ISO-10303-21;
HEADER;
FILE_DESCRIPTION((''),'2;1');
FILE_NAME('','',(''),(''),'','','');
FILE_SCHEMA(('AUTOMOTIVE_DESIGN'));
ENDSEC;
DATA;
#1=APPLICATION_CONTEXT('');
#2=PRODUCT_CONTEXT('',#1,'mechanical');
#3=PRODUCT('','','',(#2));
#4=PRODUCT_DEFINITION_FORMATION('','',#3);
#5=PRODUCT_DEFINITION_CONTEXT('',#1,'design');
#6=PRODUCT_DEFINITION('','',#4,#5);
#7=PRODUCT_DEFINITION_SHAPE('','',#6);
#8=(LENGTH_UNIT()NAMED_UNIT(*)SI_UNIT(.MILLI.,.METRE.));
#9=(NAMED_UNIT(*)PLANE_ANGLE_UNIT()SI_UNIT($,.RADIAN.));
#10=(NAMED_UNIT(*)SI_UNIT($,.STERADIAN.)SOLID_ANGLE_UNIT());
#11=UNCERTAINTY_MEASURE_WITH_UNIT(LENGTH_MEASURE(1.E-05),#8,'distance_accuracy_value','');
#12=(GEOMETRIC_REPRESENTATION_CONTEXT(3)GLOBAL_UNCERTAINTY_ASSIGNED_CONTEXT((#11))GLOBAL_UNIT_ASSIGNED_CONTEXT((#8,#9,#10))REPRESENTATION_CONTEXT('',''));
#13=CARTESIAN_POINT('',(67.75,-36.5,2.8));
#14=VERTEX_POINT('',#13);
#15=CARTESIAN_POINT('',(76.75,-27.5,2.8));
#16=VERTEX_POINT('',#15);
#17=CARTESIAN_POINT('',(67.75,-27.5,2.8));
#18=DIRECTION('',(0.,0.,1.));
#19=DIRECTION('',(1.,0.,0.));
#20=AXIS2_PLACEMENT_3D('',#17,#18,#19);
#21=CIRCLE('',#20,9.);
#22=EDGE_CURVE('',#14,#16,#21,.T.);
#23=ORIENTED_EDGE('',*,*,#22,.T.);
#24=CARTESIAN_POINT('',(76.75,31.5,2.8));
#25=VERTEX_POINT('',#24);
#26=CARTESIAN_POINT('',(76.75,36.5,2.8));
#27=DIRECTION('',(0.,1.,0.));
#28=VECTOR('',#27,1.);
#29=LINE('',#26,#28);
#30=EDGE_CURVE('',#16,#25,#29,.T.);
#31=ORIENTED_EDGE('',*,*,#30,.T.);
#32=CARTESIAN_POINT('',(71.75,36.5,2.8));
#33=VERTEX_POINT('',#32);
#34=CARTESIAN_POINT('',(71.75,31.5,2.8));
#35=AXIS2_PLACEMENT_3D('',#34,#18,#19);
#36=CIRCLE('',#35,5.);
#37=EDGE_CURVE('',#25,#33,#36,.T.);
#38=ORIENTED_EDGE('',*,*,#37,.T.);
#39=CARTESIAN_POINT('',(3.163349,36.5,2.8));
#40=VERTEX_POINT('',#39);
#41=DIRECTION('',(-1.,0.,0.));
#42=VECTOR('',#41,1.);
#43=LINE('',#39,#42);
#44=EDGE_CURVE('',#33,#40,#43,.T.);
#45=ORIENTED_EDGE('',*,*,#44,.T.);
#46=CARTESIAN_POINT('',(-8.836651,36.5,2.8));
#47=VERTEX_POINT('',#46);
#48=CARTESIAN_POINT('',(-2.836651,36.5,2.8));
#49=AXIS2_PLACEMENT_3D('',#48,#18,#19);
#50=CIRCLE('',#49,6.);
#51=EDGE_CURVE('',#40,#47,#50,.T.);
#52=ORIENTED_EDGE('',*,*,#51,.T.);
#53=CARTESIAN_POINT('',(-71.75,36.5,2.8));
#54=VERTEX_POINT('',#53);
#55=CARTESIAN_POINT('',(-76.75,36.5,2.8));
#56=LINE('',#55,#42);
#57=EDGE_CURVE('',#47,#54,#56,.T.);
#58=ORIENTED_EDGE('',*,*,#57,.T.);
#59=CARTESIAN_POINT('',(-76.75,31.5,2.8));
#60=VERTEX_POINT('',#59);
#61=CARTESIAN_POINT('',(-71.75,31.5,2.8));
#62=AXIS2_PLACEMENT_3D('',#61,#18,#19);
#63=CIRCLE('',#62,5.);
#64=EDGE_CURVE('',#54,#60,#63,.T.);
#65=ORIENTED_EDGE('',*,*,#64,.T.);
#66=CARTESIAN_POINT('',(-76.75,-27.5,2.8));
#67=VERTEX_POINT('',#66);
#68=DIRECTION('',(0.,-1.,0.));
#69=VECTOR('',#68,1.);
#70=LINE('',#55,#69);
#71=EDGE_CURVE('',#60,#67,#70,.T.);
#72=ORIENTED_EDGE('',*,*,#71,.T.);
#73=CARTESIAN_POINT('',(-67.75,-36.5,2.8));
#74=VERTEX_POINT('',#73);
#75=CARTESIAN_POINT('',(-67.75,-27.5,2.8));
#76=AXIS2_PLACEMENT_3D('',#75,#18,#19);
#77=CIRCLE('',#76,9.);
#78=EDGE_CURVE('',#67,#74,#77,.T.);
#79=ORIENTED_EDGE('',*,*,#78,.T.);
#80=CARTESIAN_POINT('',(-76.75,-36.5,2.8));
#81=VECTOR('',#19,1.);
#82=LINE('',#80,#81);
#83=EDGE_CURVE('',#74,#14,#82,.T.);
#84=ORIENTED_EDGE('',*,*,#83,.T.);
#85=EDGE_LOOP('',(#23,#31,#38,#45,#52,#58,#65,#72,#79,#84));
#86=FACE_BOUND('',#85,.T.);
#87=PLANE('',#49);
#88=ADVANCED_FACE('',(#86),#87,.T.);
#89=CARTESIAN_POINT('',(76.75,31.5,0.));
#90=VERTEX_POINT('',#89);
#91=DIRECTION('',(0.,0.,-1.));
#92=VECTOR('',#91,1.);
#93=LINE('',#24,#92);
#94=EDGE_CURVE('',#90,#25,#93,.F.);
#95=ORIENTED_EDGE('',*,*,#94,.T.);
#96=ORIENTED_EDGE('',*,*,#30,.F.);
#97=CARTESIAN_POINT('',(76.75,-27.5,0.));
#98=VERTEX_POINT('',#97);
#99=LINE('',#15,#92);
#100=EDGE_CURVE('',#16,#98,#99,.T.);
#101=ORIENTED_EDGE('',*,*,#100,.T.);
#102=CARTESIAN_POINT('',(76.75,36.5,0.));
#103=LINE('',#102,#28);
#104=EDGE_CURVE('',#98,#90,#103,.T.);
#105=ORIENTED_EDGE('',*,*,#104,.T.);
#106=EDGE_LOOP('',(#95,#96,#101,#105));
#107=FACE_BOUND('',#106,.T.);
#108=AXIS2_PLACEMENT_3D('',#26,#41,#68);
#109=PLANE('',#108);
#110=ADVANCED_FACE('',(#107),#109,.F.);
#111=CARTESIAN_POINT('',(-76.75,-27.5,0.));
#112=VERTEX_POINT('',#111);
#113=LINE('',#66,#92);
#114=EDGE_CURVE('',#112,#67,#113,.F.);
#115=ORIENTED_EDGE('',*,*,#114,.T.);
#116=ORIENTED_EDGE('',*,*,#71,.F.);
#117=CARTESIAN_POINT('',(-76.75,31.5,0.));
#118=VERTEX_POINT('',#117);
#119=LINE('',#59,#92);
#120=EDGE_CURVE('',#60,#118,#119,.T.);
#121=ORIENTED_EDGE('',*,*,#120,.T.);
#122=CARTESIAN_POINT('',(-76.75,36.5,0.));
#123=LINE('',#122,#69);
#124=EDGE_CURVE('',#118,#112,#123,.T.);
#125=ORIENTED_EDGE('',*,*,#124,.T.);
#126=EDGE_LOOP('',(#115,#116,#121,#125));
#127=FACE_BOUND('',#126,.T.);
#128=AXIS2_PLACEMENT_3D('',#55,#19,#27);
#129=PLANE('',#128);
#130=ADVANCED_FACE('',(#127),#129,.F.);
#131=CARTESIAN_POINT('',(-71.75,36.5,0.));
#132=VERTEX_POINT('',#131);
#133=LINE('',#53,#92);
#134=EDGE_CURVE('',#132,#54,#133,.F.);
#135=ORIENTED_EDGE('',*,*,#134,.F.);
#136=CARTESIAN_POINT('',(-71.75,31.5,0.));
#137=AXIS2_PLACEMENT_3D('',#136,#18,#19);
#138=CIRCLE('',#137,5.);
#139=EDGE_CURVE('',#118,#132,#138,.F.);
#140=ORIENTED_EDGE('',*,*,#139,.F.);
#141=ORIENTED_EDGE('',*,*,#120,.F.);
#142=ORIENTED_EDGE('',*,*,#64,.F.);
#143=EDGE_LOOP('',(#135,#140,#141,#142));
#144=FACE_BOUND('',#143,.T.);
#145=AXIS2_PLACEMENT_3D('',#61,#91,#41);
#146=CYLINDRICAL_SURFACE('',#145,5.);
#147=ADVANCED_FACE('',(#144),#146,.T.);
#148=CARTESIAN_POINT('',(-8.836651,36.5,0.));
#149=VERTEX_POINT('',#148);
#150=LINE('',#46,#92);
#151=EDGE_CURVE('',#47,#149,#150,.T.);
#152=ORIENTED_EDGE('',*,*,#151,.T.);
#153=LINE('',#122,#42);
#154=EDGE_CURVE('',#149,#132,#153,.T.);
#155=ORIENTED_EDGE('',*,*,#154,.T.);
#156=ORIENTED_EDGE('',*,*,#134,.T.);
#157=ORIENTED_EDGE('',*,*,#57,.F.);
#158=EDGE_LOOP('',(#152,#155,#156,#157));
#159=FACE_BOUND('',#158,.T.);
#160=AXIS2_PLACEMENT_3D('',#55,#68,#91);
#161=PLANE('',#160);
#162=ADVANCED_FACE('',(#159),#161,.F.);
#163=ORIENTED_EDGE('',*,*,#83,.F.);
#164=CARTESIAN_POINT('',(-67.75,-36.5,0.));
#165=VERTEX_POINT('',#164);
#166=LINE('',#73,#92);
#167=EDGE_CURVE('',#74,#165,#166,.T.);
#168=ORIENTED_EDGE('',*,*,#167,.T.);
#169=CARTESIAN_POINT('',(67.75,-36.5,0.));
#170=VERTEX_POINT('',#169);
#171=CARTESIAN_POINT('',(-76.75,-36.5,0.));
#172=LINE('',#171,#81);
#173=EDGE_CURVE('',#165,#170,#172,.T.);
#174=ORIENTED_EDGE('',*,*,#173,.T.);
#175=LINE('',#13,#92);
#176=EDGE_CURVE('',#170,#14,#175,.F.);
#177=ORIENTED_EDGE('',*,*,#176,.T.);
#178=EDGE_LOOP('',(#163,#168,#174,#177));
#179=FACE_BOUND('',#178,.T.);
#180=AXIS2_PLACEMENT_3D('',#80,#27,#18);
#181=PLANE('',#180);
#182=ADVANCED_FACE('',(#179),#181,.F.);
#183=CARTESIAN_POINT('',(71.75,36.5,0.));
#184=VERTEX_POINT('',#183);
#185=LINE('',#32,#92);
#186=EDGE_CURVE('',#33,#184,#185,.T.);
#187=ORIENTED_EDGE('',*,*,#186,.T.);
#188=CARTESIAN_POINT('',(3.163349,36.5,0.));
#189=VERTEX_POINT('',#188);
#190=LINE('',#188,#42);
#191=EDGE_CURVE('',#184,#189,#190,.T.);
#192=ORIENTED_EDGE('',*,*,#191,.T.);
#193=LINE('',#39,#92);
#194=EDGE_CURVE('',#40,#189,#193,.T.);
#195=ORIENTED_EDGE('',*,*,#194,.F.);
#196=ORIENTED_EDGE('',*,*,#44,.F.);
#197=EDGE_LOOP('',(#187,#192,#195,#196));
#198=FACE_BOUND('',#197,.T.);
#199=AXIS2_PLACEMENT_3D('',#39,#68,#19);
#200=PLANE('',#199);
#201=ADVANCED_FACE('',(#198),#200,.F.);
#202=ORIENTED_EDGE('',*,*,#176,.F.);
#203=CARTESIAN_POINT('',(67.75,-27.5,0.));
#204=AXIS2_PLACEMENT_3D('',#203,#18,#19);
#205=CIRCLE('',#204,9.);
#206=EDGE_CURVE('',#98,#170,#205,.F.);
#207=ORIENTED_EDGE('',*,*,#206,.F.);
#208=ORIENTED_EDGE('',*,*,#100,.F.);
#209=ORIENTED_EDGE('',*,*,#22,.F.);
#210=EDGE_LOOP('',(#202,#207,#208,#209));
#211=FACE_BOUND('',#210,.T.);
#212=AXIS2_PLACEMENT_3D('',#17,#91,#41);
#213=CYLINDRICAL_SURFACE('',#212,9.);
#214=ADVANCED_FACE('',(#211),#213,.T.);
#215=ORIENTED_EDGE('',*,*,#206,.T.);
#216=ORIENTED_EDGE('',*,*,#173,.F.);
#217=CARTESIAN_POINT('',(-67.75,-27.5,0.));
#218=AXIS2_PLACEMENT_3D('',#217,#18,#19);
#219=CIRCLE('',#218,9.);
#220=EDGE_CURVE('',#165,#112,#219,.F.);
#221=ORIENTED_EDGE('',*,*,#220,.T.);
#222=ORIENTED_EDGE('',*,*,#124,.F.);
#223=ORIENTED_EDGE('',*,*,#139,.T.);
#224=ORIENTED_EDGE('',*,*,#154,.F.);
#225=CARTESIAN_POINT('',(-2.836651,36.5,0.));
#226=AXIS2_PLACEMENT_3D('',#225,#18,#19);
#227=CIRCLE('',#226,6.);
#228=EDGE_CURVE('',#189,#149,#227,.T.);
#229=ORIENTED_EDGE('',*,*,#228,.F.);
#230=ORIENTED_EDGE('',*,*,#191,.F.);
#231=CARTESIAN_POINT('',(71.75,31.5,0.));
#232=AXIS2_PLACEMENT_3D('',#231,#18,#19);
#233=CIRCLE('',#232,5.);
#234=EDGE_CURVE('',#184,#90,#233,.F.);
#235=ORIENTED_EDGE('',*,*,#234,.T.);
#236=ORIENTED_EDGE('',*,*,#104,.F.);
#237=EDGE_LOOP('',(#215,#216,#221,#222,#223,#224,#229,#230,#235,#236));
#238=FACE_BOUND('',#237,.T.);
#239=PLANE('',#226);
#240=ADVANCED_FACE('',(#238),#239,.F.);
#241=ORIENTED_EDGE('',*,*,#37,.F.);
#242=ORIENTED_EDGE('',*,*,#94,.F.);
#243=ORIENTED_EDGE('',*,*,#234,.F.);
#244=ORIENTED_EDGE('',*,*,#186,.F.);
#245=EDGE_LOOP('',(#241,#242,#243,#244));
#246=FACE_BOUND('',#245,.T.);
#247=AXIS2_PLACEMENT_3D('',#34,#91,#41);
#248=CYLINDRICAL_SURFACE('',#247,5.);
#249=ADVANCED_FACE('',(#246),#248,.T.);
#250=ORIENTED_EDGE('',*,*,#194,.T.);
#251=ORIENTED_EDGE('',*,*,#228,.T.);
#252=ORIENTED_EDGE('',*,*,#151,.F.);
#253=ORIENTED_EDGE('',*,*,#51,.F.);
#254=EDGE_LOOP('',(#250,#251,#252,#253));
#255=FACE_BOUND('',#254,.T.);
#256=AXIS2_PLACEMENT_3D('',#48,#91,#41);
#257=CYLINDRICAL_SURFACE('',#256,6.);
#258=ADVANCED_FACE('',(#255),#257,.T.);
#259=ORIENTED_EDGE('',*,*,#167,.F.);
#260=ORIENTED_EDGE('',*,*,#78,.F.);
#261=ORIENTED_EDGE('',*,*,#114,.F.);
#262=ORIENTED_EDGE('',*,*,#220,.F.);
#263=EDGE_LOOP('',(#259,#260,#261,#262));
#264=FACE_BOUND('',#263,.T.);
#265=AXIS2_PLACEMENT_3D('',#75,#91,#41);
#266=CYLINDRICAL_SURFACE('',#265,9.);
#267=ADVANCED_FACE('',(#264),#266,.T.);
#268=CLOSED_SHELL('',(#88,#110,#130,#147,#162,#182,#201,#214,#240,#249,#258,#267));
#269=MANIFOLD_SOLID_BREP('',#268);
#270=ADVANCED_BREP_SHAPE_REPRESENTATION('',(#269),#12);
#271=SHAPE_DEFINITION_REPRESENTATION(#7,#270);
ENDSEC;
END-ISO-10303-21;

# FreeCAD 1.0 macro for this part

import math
import FreeCAD as App
import Part
import Sketcher
from FreeCAD import Vector
Q = App.Units.Quantity


def edges_at(feature, points):
    """Names of the edges that pass closest to the given points."""
    edges = feature.Shape.Edges
    near = lambda p: min(range(len(edges)), key=lambda i: edges[i].distToShape(Part.Vertex(*p))[0])
    return sorted({f"Edge{near(p) + 1}" for p in points})

doc = App.newDocument("Part")
body = doc.addObject("PartDesign::Body", "Body")

sketch1 = doc.addObject("Sketcher::SketchObject", "Sketch")
body.addObject(sketch1)
sketch1.AttachmentSupport = (doc.XY_Plane, [""])
sketch1.MapMode = "FlatFace"
sketch1.addGeometry(Part.LineSegment(Vector(77, 36, 0), Vector(3, 36, 0)), False)
sketch1.addGeometry(Part.ArcOfCircle(Part.Circle(Vector(-3, 36, 0), Vector(0, 0, 1), 6), math.radians(0), math.radians(180)), False)
sketch1.addGeometry(Part.LineSegment(Vector(-9, 36, 0), Vector(-77, 36, 0)), False)
sketch1.addGeometry(Part.LineSegment(Vector(-77, 36, 0), Vector(-77, -36, 0)), False)
sketch1.addGeometry(Part.LineSegment(Vector(-77, -36, 0), Vector(77, -36, 0)), False)
sketch1.addGeometry(Part.LineSegment(Vector(77, -36, 0), Vector(77, 36, 0)), False)
sketch1.addConstraint(Sketcher.Constraint("Coincident", 0, 2, 1, 1))
sketch1.addConstraint(Sketcher.Constraint("Coincident", 1, 2, 2, 1))
sketch1.addConstraint(Sketcher.Constraint("Coincident", 2, 2, 3, 1))
sketch1.addConstraint(Sketcher.Constraint("Coincident", 3, 2, 4, 1))
sketch1.addConstraint(Sketcher.Constraint("Coincident", 4, 2, 5, 1))
sketch1.addConstraint(Sketcher.Constraint("Coincident", 5, 2, 0, 1))
sketch1.addConstraint(Sketcher.Constraint("Horizontal", 0))
sketch1.addConstraint(Sketcher.Constraint("Horizontal", 2))
sketch1.addConstraint(Sketcher.Constraint("Vertical", 3))
sketch1.addConstraint(Sketcher.Constraint("Horizontal", 4))
sketch1.addConstraint(Sketcher.Constraint("Vertical", 5))
sketch1.addConstraint(Sketcher.Constraint("Symmetric", 2, 2, 4, 2, -1, 1))
sketch1.addConstraint(Sketcher.Constraint("Horizontal", 1, 3, 0, 2))
sketch1.addConstraint(Sketcher.Constraint("Horizontal", 0, 2, 1, 2))
sketch1.addConstraint(Sketcher.Constraint("Radius", 1, Q("6 mm")))
sketch1.addConstraint(Sketcher.Constraint("DistanceY", 3, 2, 3, 1, Q("73 mm")))
sketch1.addConstraint(Sketcher.Constraint("DistanceX", 4, 1, 4, 2, Q("153.5 mm")))
sketch1.addConstraint(Sketcher.Constraint("DistanceX", 0, 2, 0, 1, Q("73.586651 mm")))
pad1 = doc.addObject("PartDesign::Pad", "Pad")
body.addObject(pad1)
pad1.Profile = sketch1
pad1.Length = 2.8
doc.recompute()

fillet = doc.addObject("PartDesign::Fillet", "Fillet")
body.addObject(fillet)
fillet.Base = (pad1, edges_at(pad1, [(76.75, -36.5, 1.4), (-76.75, -36.5, 1.4)]))
fillet.Radius = 9
doc.recompute()

fillet2 = doc.addObject("PartDesign::Fillet", "Fillet001")
body.addObject(fillet2)
fillet2.Base = (fillet, edges_at(fillet, [(-76.75, 36.5, 1.4), (76.75, 36.5, 1.4)]))
fillet2.Radius = 5

doc.recompute()
